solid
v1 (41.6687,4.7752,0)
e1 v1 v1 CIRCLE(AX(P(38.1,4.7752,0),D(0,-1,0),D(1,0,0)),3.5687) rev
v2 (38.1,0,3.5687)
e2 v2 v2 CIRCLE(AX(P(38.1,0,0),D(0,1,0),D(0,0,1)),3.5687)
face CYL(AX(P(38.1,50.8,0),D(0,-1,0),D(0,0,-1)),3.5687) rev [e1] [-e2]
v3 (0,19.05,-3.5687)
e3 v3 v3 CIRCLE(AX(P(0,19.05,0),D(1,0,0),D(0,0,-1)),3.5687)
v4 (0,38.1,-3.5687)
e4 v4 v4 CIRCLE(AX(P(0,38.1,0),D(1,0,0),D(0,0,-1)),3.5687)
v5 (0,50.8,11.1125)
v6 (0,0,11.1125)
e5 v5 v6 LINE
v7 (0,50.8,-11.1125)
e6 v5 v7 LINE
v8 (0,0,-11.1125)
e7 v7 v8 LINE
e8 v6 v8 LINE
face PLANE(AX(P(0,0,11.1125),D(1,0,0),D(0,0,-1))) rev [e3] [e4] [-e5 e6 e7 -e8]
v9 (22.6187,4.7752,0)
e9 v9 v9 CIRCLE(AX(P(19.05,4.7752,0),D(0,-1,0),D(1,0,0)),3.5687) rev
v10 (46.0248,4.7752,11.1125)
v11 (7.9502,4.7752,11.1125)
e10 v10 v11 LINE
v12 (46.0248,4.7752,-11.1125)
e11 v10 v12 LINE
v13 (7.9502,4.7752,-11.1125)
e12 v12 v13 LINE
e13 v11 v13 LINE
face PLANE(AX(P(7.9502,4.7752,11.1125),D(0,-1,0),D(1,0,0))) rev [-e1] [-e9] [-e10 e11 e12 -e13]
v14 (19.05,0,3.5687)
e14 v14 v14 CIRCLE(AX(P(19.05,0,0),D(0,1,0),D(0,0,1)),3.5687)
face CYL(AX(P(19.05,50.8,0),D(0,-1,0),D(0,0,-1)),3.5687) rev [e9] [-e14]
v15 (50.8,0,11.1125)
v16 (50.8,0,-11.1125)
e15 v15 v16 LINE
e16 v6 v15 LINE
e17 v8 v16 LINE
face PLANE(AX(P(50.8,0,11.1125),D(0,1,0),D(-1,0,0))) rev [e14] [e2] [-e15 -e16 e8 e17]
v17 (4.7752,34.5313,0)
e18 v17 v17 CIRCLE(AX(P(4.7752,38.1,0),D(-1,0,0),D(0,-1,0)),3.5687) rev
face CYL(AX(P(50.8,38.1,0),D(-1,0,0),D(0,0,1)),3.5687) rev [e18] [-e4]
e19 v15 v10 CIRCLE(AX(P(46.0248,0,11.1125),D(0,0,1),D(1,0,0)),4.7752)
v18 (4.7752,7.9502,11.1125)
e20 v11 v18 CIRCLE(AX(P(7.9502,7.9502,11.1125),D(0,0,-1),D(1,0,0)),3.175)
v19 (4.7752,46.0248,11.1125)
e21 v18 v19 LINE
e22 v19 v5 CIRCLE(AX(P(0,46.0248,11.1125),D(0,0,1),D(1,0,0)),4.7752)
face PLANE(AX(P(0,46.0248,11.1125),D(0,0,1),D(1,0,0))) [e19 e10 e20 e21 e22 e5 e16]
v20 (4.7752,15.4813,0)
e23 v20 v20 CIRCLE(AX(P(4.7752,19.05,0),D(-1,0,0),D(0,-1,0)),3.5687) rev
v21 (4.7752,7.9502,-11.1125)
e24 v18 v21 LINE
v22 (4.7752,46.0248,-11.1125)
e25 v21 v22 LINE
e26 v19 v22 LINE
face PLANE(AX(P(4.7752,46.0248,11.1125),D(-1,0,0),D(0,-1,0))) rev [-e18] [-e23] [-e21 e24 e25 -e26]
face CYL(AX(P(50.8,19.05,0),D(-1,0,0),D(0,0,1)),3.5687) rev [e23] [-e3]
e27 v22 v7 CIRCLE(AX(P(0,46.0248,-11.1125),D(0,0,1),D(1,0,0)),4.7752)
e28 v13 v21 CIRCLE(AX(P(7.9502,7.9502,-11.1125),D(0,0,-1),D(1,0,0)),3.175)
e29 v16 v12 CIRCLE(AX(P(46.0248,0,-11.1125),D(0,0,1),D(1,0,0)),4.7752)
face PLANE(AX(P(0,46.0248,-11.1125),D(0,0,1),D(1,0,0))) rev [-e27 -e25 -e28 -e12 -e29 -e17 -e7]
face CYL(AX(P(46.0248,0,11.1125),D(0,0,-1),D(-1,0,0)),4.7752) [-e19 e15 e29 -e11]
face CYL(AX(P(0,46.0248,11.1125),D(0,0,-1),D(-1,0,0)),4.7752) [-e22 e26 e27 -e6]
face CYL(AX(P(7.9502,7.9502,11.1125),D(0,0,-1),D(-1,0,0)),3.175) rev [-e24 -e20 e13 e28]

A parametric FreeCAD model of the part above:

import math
import FreeCAD as App
import Part
import Sketcher
Q = App.Units.Quantity

doc = App.newDocument("Part")
body = doc.addObject("PartDesign::Body", "Body")

sketch1 = body.newObject("Sketcher::SketchObject", "Sketch")
sketch1.AttachmentSupport = (doc.getObject("XY_Plane"), [""])
sketch1.MapMode = "FlatFace"
sketch1.addGeometry(Part.LineSegment(App.Vector(0, 50.8, 0), App.Vector(0, 0, 0)), False)
sketch1.addGeometry(Part.LineSegment(App.Vector(0, 0, 0), App.Vector(50.8, 0, 0)), False)
sketch1.addGeometry(Part.ArcOfCircle(Part.Circle(App.Vector(46.0248, 0, 0), App.Vector(0, 0, 1), 4.7752), math.radians(0), math.radians(90)), False)
sketch1.addGeometry(Part.LineSegment(App.Vector(46.0248, 4.7752, 0), App.Vector(7.9502, 4.7752, 0)), False)
sketch1.addGeometry(Part.ArcOfCircle(Part.Circle(App.Vector(7.9502, 7.9502, 0), App.Vector(0, 0, 1), 3.175), math.radians(-180), math.radians(-90)), False)
sketch1.addGeometry(Part.LineSegment(App.Vector(4.7752, 7.9502, 0), App.Vector(4.7752, 46.0248, 0)), False)
sketch1.addGeometry(Part.ArcOfCircle(Part.Circle(App.Vector(0, 46.0248, 0), App.Vector(0, 0, 1), 4.7752), math.radians(0), math.radians(90)), False)
sketch1.addConstraint(Sketcher.Constraint("Coincident", 0, 2, 1, 1))
sketch1.addConstraint(Sketcher.Constraint("Coincident", 1, 2, 2, 1))
sketch1.addConstraint(Sketcher.Constraint("Tangent", 2, 2, 3, 1))
sketch1.addConstraint(Sketcher.Constraint("Tangent", 3, 2, 4, 2))
sketch1.addConstraint(Sketcher.Constraint("Tangent", 4, 1, 5, 1))
sketch1.addConstraint(Sketcher.Constraint("Tangent", 5, 2, 6, 1))
sketch1.addConstraint(Sketcher.Constraint("Coincident", 6, 2, 0, 1))
sketch1.addConstraint(Sketcher.Constraint("Vertical", 0))
sketch1.addConstraint(Sketcher.Constraint("Horizontal", 1))
sketch1.addConstraint(Sketcher.Constraint("Horizontal", 3))
sketch1.addConstraint(Sketcher.Constraint("Vertical", 5))
sketch1.addConstraint(Sketcher.Constraint("Coincident", 0, 2, -1, 1))
sketch1.addConstraint(Sketcher.Constraint("Equal", 2, 6))
sketch1.addConstraint(Sketcher.Constraint("PointOnObject", 2, 3, -1))
sketch1.addConstraint(Sketcher.Constraint("PointOnObject", 6, 3, -2))
sketch1.addConstraint(Sketcher.Constraint("Equal", 1, 0))
sketch1.addConstraint(Sketcher.Constraint("DistanceX", 1, 1, 1, 2, Q("2 in")))
sketch1.addConstraint(Sketcher.Constraint("Radius", 2, Q("0.188 in")))
sketch1.addConstraint(Sketcher.Constraint("Radius", 4, Q("0.125 in")))
pad1 = body.newObject("PartDesign::Pad", "Pad")
pad1.Profile = sketch1
pad1.Length = Q("0.875 in")
pad1.Midplane = True

sketch2 = body.newObject("Sketcher::SketchObject", "Sketch001")
sketch2.AttachmentSupport = (doc.getObject("XZ_Plane"), [""])
sketch2.MapMode = "FlatFace"
sketch2.addGeometry(Part.Circle(App.Vector(19.05, 0, 0), App.Vector(0, 0, 1), 3.5687), False)
sketch2.addGeometry(Part.Circle(App.Vector(38.1, 0, 0), App.Vector(0, 0, 1), 3.5687), False)
sketch2.addConstraint(Sketcher.Constraint("Equal", 0, 1))
sketch2.addConstraint(Sketcher.Constraint("PointOnObject", 0, 3, -1))
sketch2.addConstraint(Sketcher.Constraint("PointOnObject", 1, 3, -1))
sketch2.addConstraint(Sketcher.Constraint("Diameter", 0, Q("0.281 in")))
sketch2.addConstraint(Sketcher.Constraint("DistanceX", -1, 1, 1, 3, Q("1.5 in")))
sketch2.addConstraint(Sketcher.Constraint("DistanceX", -1, 1, 0, 3, Q("0.75 in")))
pocket1 = body.newObject("PartDesign::Pocket", "Pocket")
pocket1.Profile = sketch2
pocket1.Type = "ThroughAll"

sketch3 = body.newObject("Sketcher::SketchObject", "Sketch002")
sketch3.AttachmentSupport = (doc.getObject("YZ_Plane"), [""])
sketch3.MapMode = "FlatFace"
sketch3.addGeometry(Part.Circle(App.Vector(19.05, 0, 0), App.Vector(0, 0, 1), 3.5687), False)
sketch3.addGeometry(Part.Circle(App.Vector(38.1, 0, 0), App.Vector(0, 0, 1), 3.5687), False)
sketch3.addConstraint(Sketcher.Constraint("Equal", 0, 1))
sketch3.addConstraint(Sketcher.Constraint("PointOnObject", 0, 3, -1))
sketch3.addConstraint(Sketcher.Constraint("PointOnObject", 1, 3, -1))
sketch3.addConstraint(Sketcher.Constraint("Diameter", 0, Q("0.281 in")))
sketch3.addConstraint(Sketcher.Constraint("DistanceX", -1, 1, 1, 3, Q("1.5 in")))
sketch3.addConstraint(Sketcher.Constraint("DistanceX", -1, 1, 0, 3, Q("0.75 in")))
pocket2 = body.newObject("PartDesign::Pocket", "Pocket001")
pocket2.Profile = sketch3
pocket2.Type = "ThroughAll"
pocket2.Reversed = True

doc.recompute()
